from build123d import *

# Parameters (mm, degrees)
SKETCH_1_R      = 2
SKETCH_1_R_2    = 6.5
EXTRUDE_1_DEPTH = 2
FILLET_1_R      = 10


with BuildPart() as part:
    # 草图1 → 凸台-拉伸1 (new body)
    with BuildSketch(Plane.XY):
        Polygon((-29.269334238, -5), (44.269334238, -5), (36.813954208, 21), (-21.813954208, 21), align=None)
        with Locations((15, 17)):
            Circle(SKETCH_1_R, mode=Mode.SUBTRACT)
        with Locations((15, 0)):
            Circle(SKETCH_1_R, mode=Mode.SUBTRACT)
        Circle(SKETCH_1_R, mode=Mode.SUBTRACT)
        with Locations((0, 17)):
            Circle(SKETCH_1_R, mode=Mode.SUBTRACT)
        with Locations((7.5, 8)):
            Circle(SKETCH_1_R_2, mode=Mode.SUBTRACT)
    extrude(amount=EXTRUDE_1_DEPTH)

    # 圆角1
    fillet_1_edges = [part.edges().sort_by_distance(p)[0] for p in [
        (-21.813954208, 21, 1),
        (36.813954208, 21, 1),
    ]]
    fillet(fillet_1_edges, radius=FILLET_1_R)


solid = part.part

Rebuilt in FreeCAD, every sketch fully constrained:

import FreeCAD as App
import Part
import Sketcher
Q = App.Units.Quantity


def edges_at(feature, points):
    """Names of the edges that pass closest to the given points."""
    edges = feature.Shape.Edges
    near = lambda p: min(range(len(edges)), key=lambda i: edges[i].distToShape(Part.Vertex(*p))[0])
    return sorted({f"Edge{near(p) + 1}" for p in points})

doc = App.newDocument("Part")
body = doc.addObject("PartDesign::Body", "Body")

sketch1 = body.newObject("Sketcher::SketchObject", "Sketch")
sketch1.AttachmentSupport = (doc.getObject("XY_Plane"), [""])
sketch1.MapMode = "FlatFace"
sketch1.addGeometry([
    Part.LineSegment(App.Vector(-29.3, -5, 0), App.Vector(44.3, -5, 0)),
    Part.LineSegment(App.Vector(44.3, -5, 0), App.Vector(36.8, 21, 0)),
    Part.LineSegment(App.Vector(36.8, 21, 0), App.Vector(-21.8, 21, 0)),
    Part.LineSegment(App.Vector(-21.8, 21, 0), App.Vector(-29.3, -5, 0)),
    Part.Circle(App.Vector(0, 0, 0), App.Vector(0, 0, 1), 2),
    Part.Circle(App.Vector(15, 0, 0), App.Vector(0, 0, 1), 2),
    Part.Circle(App.Vector(7.5, 8, 0), App.Vector(0, 0, 1), 6.5),
    Part.Circle(App.Vector(0, 17, 0), App.Vector(0, 0, 1), 2),
    Part.Circle(App.Vector(15, 17, 0), App.Vector(0, 0, 1), 2),
], False)
sketch1.addConstraint([
    Sketcher.Constraint("Coincident", 0, 2, 1, 1),
    Sketcher.Constraint("Coincident", 1, 2, 2, 1),
    Sketcher.Constraint("Coincident", 2, 2, 3, 1),
    Sketcher.Constraint("Coincident", 3, 2, 0, 1),
    Sketcher.Constraint("Horizontal", 0),
    Sketcher.Constraint("Horizontal", 2),
    Sketcher.Constraint("Coincident", 4, 3, -1, 1),
    Sketcher.Constraint("Equal", 4, 5),
    Sketcher.Constraint("Equal", 5, 7),
    Sketcher.Constraint("Equal", 7, 8),
    Sketcher.Constraint("PointOnObject", 5, 3, -1),
    Sketcher.Constraint("PointOnObject", 7, 3, -2),
    Sketcher.Constraint("Horizontal", 7, 3, 8, 3),
    Sketcher.Constraint("Vertical", 5, 3, 8, 3),
    Sketcher.Constraint("Equal", 1, 3),
    Sketcher.Constraint("Diameter", 4, 4.0),
    Sketcher.Constraint("Diameter", 6, 13.0),
    Sketcher.Constraint("Angle", 1, Q("106 deg")),
    Sketcher.Constraint("DistanceX", -1, 1, 5, 3, 15.0),
    Sketcher.Constraint("DistanceY", -1, 1, 6, 3, 8.0),
    Sketcher.Constraint("DistanceY", -1, 1, 7, 3, 17.0),
    Sketcher.Constraint("DistanceY", 0, 2, -1, 1, 5.0),
    Sketcher.Constraint("DistanceY", -1, 1, 1, 2, 21.0),
    Sketcher.Constraint("DistanceX", -1, 1, 6, 3, 7.5),
    Sketcher.Constraint("DistanceX", 0, 1, 0, 2, 73.538668),
    Sketcher.Constraint("DistanceX", -1, 1, 0, 2, 44.269334),
])
pad1 = body.newObject("PartDesign::Pad", "Pad")
pad1.Profile = sketch1
pad1.Length = 2
doc.recompute()

fillet = body.newObject("PartDesign::Fillet", "Fillet")
fillet.Base = (pad1, edges_at(pad1, [(-21.814, 21, 1), (36.814, 21, 1)]))
fillet.Radius = 10

doc.recompute()
